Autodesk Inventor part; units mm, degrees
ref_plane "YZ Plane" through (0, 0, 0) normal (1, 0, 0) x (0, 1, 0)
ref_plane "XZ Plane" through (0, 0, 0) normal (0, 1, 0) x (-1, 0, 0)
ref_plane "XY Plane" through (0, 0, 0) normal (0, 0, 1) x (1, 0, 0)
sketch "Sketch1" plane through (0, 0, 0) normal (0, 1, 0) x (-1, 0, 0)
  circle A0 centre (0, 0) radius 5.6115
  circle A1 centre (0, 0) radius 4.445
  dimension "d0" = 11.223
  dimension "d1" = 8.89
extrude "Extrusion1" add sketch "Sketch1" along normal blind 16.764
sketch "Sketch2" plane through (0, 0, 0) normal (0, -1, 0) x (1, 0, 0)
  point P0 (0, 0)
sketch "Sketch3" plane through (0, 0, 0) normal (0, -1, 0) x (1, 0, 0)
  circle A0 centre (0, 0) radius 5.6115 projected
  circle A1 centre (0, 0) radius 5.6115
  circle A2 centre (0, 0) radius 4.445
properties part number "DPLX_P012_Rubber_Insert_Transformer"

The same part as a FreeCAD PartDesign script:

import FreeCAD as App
import Part
import Sketcher

V = App.Vector
Q = App.Units.Quantity

doc = App.newDocument("Part")
body = doc.addObject("PartDesign::Body", "Body")

# Sketch on XZ plane
sketch1 = body.newObject("Sketcher::SketchObject", "Sketch")
sketch1.AttachmentSupport = (doc.getObject("XZ_Plane"), [""])
sketch1.MapMode = "FlatFace"
sketch1.addGeometry([
    Part.Circle(V(0, 0, 0), V(0, 0, 1), 5.6115),
    Part.Circle(V(0, 0, 0), V(0, 0, 1), 4.445),
], False)
sketch1.addConstraint([
    Sketcher.Constraint("Coincident", 0, 3, -1, 1),
    Sketcher.Constraint("Coincident", 1, 3, -1, 1),
    Sketcher.Constraint("Diameter", 1, Q("0.35 in")),
    Sketcher.Constraint("Diameter", 0, 11.223),
])
pad1 = body.newObject("PartDesign::Pad", "Pad")
pad1.Profile = sketch1
pad1.Length = Q("0.66 in")
pad1.Reversed = True

doc.recompute()
